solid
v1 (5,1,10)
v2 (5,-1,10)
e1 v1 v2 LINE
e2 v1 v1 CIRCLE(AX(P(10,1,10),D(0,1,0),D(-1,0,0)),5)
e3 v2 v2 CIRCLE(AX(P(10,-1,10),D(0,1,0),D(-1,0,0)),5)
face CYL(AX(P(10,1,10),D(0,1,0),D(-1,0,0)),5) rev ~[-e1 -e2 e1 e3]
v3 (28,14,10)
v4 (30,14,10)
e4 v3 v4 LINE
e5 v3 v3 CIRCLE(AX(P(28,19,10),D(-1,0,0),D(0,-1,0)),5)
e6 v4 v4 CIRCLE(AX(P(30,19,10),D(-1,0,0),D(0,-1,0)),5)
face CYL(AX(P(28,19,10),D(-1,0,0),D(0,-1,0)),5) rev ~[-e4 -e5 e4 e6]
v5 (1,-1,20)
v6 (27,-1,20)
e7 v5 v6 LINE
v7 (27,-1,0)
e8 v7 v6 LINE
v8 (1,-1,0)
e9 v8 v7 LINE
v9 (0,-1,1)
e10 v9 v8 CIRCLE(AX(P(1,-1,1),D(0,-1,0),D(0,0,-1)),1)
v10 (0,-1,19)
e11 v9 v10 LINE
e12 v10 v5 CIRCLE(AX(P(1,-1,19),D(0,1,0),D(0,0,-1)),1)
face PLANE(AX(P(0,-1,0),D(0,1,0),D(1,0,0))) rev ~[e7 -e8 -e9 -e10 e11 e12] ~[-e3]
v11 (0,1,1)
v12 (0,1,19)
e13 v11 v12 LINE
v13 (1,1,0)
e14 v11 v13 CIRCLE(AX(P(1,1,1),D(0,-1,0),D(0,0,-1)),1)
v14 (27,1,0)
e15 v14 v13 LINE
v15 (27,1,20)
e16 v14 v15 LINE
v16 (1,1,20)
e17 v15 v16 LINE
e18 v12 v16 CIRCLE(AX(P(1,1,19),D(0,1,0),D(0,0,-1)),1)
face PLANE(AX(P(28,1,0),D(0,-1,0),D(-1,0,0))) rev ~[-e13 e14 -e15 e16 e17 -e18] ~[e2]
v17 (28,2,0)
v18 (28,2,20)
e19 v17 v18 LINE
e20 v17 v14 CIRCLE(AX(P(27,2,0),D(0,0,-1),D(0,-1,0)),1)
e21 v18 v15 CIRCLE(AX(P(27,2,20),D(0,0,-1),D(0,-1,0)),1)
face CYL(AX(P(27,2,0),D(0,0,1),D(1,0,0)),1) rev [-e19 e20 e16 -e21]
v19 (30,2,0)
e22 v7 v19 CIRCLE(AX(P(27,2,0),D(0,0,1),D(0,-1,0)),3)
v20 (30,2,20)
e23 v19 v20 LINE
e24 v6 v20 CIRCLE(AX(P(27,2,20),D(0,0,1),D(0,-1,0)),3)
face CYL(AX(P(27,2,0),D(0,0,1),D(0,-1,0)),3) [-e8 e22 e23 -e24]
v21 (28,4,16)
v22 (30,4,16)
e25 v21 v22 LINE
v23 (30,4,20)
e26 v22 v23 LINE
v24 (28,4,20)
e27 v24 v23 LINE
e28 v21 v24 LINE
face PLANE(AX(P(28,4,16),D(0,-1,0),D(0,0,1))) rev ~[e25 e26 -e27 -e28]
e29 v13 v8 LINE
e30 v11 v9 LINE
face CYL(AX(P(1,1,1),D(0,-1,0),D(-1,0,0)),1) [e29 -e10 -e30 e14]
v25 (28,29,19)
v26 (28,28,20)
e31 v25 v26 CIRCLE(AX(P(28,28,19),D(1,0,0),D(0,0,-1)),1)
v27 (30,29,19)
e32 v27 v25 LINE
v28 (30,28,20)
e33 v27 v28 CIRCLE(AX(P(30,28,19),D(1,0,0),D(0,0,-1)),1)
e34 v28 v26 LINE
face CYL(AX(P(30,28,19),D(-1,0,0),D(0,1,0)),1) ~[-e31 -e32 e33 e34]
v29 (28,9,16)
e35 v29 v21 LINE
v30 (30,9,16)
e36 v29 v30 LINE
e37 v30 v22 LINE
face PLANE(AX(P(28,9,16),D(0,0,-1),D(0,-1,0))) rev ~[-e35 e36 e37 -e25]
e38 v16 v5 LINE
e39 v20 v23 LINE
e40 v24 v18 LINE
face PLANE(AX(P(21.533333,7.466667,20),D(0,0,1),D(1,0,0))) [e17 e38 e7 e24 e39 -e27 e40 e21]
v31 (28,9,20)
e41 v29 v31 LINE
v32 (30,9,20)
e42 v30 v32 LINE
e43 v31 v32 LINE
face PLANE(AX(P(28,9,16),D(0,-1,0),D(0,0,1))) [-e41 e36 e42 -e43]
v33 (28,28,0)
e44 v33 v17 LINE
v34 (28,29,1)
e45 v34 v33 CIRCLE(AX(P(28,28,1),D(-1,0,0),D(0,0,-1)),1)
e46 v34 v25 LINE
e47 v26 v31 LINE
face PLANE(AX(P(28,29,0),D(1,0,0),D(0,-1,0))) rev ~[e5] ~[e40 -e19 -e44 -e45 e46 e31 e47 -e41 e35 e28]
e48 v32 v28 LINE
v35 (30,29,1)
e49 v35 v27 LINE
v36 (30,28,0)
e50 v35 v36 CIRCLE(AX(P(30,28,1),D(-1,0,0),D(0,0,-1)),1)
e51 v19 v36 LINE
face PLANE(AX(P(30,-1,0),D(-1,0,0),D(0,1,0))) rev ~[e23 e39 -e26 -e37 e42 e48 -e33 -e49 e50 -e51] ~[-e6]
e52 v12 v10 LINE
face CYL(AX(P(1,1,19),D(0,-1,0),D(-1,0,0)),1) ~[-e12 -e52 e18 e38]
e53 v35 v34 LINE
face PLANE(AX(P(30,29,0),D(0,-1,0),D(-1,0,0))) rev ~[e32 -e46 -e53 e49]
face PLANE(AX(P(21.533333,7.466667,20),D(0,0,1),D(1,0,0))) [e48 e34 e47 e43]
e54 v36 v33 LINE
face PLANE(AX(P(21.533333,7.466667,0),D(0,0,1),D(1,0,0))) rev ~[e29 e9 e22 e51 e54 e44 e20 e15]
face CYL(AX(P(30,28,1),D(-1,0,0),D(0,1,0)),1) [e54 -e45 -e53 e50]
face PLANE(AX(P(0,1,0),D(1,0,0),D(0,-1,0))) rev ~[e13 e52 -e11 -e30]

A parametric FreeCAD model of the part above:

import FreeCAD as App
import Part
import Sketcher
Q = App.Units.Quantity


def edges_at(feature, points):
    """Names of the edges that pass closest to the given points."""
    edges = feature.Shape.Edges
    near = lambda p: min(range(len(edges)), key=lambda i: edges[i].distToShape(Part.Vertex(*p))[0])
    return sorted({f"Edge{near(p) + 1}" for p in points})

doc = App.newDocument("Part")
params = doc.addObject("Spreadsheet::Sheet", "Params")
for row, (alias, value) in enumerate([
    ("sketch1_width", "30 mm"),
    ("sketch1_width2", "2 mm"),
    ("pad1_length", "20 mm"),
    ("fillet_radius", "1 mm"),
    ("fillet2_radius", "3 mm"),
    ("sketch2_diameter", "10 mm"),
    ("pocket1_length", "25 mm"),
    ("sketch3_diameter", "10 mm"),
    ("pocket2_length", "25 mm"),
    ("sketch4_width", "5 mm"),
    ("sketch4_height", "4 mm"),
    ("pocket3_length", "25 mm"),
], start=1):
    params.set(f"A{row}", alias)
    params.set(f"B{row}", "=" + value)
    params.setAlias(f"B{row}", alias)

body = doc.addObject("PartDesign::Body", "Body")

# Sketch on XY plane
sketch1 = body.newObject("Sketcher::SketchObject", "Sketch")
sketch1.AttachmentSupport = (doc.getObject("XY_Plane"), [""])
sketch1.MapMode = "FlatFace"
sketch1.addGeometry(Part.LineSegment(App.Vector(0, 1, 0), App.Vector(0, -1, 0)), False)
sketch1.addGeometry(Part.LineSegment(App.Vector(0, -1, 0), App.Vector(30, -1, 0)), False)
sketch1.addGeometry(Part.LineSegment(App.Vector(30, -1, 0), App.Vector(30, 29, 0)), False)
sketch1.addGeometry(Part.LineSegment(App.Vector(30, 29, 0), App.Vector(28, 29, 0)), False)
sketch1.addGeometry(Part.LineSegment(App.Vector(28, 29, 0), App.Vector(28, 1, 0)), False)
sketch1.addGeometry(Part.LineSegment(App.Vector(28, 1, 0), App.Vector(0, 1, 0)), False)
sketch1.addConstraint(Sketcher.Constraint("Coincident", 0, 2, 1, 1))
sketch1.addConstraint(Sketcher.Constraint("Coincident", 1, 2, 2, 1))
sketch1.addConstraint(Sketcher.Constraint("Coincident", 2, 2, 3, 1))
sketch1.addConstraint(Sketcher.Constraint("Coincident", 3, 2, 4, 1))
sketch1.addConstraint(Sketcher.Constraint("Coincident", 4, 2, 5, 1))
sketch1.addConstraint(Sketcher.Constraint("Coincident", 5, 2, 0, 1))
sketch1.addConstraint(Sketcher.Constraint("Vertical", 0))
sketch1.addConstraint(Sketcher.Constraint("Horizontal", 1))
sketch1.addConstraint(Sketcher.Constraint("Vertical", 2))
sketch1.addConstraint(Sketcher.Constraint("Horizontal", 3))
sketch1.addConstraint(Sketcher.Constraint("Vertical", 4))
sketch1.addConstraint(Sketcher.Constraint("Horizontal", 5))
sketch1.addConstraint(Sketcher.Constraint("Symmetric", 0, 2, 5, 2, -1, 1))
sketch1.addConstraint(Sketcher.Constraint("Equal", 3, 0))
sketch1.addConstraint(Sketcher.Constraint("Equal", 1, 2))
sketch1.addConstraint(Sketcher.Constraint("DistanceX", 1, 1, 1, 2, Q("30 mm")))
sketch1.addConstraint(Sketcher.Constraint("DistanceX", 3, 2, 3, 1, Q("2 mm")))
sketch1.setExpression("Constraints[15]", "Params.sketch1_width")
sketch1.setExpression("Constraints[16]", "Params.sketch1_width2")
pad1 = body.newObject("PartDesign::Pad", "Pad")
pad1.Profile = sketch1
pad1.setExpression("Length", "Params.pad1_length")
doc.recompute()

fillet = body.newObject("PartDesign::Fillet", "Fillet")
fillet.Base = (pad1, edges_at(pad1, [
    (0, 0, 20),
    (28, 1, 10),
    (29, 29, 0),
    (29, 29, 20),
    (0, 0, 0),
]))
fillet.setExpression("Radius", "Params.fillet_radius")
doc.recompute()

fillet2 = body.newObject("PartDesign::Fillet", "Fillet001")
fillet2.Base = (fillet, edges_at(fillet, [(30, -1, 10)]))
fillet2.setExpression("Radius", "Params.fillet2_radius")

# Sketch on YZ plane
sketch2 = body.newObject("Sketcher::SketchObject", "Sketch001")
sketch2.AttachmentSupport = (doc.getObject("YZ_Plane"), [""])
sketch2.MapMode = "FlatFace"
sketch2.AttachmentOffset = App.Placement(App.Vector(0, 0, 28), App.Rotation())
sketch2.addGeometry(Part.Circle(App.Vector(19, 10, 0), App.Vector(0, 0, 1), 5), False)
sketch2.addConstraint(Sketcher.Constraint("Diameter", 0, Q("10 mm")))
sketch2.addConstraint(Sketcher.Constraint("DistanceX", -1, 1, 0, 3, Q("19 mm")))
sketch2.addConstraint(Sketcher.Constraint("DistanceY", -1, 1, 0, 3, Q("10 mm")))
sketch2.setExpression("Constraints[0]", "Params.sketch2_diameter")
pocket1 = body.newObject("PartDesign::Pocket", "Pocket")
pocket1.Profile = sketch2
pocket1.setExpression("Length", "Params.pocket1_length")
pocket1.Reversed = True

# Sketch on XZ plane
sketch3 = body.newObject("Sketcher::SketchObject", "Sketch002")
sketch3.AttachmentSupport = (doc.getObject("XZ_Plane"), [""])
sketch3.MapMode = "FlatFace"
sketch3.AttachmentOffset = App.Placement(App.Vector(0, 0, -1), App.Rotation())
sketch3.addGeometry(Part.Circle(App.Vector(10, 10, 0), App.Vector(0, 0, 1), 5), False)
sketch3.addConstraint(Sketcher.Constraint("Diameter", 0, Q("10 mm")))
sketch3.addConstraint(Sketcher.Constraint("DistanceX", -1, 1, 0, 3, Q("10 mm")))
sketch3.addConstraint(Sketcher.Constraint("DistanceY", -1, 1, 0, 3, Q("10 mm")))
sketch3.setExpression("Constraints[0]", "Params.sketch3_diameter")
pocket2 = body.newObject("PartDesign::Pocket", "Pocket001")
pocket2.Profile = sketch3
pocket2.setExpression("Length", "Params.pocket2_length")
pocket2.Reversed = True

# Sketch on YZ plane
sketch4 = body.newObject("Sketcher::SketchObject", "Sketch003")
sketch4.AttachmentSupport = (doc.getObject("YZ_Plane"), [""])
sketch4.MapMode = "FlatFace"
sketch4.AttachmentOffset = App.Placement(App.Vector(0, 0, 28), App.Rotation())
sketch4.addGeometry(Part.LineSegment(App.Vector(9, 20, 0), App.Vector(9, 16, 0)), False)
sketch4.addGeometry(Part.LineSegment(App.Vector(9, 16, 0), App.Vector(4, 16, 0)), False)
sketch4.addGeometry(Part.LineSegment(App.Vector(4, 16, 0), App.Vector(4, 20, 0)), False)
sketch4.addGeometry(Part.LineSegment(App.Vector(4, 20, 0), App.Vector(9, 20, 0)), False)
sketch4.addConstraint(Sketcher.Constraint("Coincident", 0, 2, 1, 1))
sketch4.addConstraint(Sketcher.Constraint("Coincident", 1, 2, 2, 1))
sketch4.addConstraint(Sketcher.Constraint("Coincident", 2, 2, 3, 1))
sketch4.addConstraint(Sketcher.Constraint("Coincident", 3, 2, 0, 1))
sketch4.addConstraint(Sketcher.Constraint("Vertical", 0))
sketch4.addConstraint(Sketcher.Constraint("Horizontal", 1))
sketch4.addConstraint(Sketcher.Constraint("Vertical", 2))
sketch4.addConstraint(Sketcher.Constraint("Horizontal", 3))
sketch4.addConstraint(Sketcher.Constraint("DistanceX", 1, 2, 1, 1, Q("5 mm")))
sketch4.addConstraint(Sketcher.Constraint("DistanceY", 0, 2, 0, 1, Q("4 mm")))
sketch4.addConstraint(Sketcher.Constraint("DistanceX", -1, 1, 0, 2, Q("9 mm")))
sketch4.addConstraint(Sketcher.Constraint("DistanceY", -1, 1, 0, 2, Q("16 mm")))
sketch4.setExpression("Constraints[8]", "Params.sketch4_width")
sketch4.setExpression("Constraints[9]", "Params.sketch4_height")
pocket3 = body.newObject("PartDesign::Pocket", "Pocket002")
pocket3.Profile = sketch4
pocket3.setExpression("Length", "Params.pocket3_length")
pocket3.Reversed = True

doc.recompute()
